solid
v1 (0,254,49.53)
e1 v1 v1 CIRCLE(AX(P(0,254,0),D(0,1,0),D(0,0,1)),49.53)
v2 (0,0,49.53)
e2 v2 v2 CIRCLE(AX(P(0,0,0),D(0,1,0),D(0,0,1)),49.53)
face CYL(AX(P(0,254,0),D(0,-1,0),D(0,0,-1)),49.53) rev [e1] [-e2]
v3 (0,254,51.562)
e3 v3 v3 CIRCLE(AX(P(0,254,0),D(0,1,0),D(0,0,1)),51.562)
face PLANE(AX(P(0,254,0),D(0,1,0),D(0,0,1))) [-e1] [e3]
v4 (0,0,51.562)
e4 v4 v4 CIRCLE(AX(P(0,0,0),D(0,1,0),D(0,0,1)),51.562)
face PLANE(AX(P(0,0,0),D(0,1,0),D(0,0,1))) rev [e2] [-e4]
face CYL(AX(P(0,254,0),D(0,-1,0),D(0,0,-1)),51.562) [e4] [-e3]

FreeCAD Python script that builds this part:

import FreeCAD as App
import Part
import Sketcher
from FreeCAD import Vector
Q = App.Units.Quantity

doc = App.newDocument("Part")
body = doc.addObject("PartDesign::Body", "Body")

# Sketch on XZ plane
sketch1 = body.newObject("Sketcher::SketchObject", "Sketch")
sketch1.AttachmentSupport = (doc.getObject("XZ_Plane"), [""])
sketch1.MapMode = "FlatFace"
sketch1.addGeometry([
    Part.Circle(Vector(0, 0, 0), Vector(0, 0, 1), 52),
    Part.Circle(Vector(0, 0, 0), Vector(0, 0, 1), 50),
], False)
sketch1.addConstraint([
    Sketcher.Constraint("Coincident", 0, 3, -1, 1),
    Sketcher.Constraint("Coincident", 1, 3, -1, 1),
    Sketcher.Constraint("Diameter", 1, Q("3.9 in")),
    Sketcher.Constraint("Diameter", 0, Q("4.06 in")),
])
pad1 = body.newObject("PartDesign::Pad", "Pad")
pad1.Profile = sketch1
pad1.Length = Q("10 in")
pad1.Reversed = True

doc.recompute()
